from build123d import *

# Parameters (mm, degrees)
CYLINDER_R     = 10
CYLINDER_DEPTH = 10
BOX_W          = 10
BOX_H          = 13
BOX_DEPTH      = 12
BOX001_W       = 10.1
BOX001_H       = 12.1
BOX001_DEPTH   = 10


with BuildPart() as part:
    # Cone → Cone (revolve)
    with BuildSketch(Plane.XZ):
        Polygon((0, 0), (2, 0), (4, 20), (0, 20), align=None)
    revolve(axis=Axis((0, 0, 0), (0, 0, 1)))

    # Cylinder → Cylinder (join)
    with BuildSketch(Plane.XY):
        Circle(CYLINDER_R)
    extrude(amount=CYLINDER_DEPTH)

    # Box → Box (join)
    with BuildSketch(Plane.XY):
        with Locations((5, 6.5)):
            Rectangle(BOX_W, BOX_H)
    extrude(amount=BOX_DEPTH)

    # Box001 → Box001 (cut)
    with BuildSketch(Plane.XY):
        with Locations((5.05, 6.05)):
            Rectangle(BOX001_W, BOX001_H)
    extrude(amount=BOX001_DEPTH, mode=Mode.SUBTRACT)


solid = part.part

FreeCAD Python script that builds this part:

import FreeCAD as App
import Part
import Sketcher

V = App.Vector
Q = App.Units.Quantity


def add_polygon(sketch, points):
    """Adds a closed chain of lines whose ends are joined by coincident constraints."""
    first, n = sketch.GeometryCount, len(points)
    for a, b in zip(points, points[1:] + points[:1]):
        sketch.addGeometry(Part.LineSegment(App.Vector(*a, 0), App.Vector(*b, 0)), False)
    for i in range(n):
        sketch.addConstraint(Sketcher.Constraint("Coincident", first + i, 2, first + (i + 1) % n, 1))

doc = App.newDocument("Part")
body = doc.addObject("PartDesign::Body", "Body")

# Sketch on XZ plane
sketch1 = doc.addObject("Sketcher::SketchObject", "Sketch")
body.addObject(sketch1)
sketch1.AttachmentSupport = (doc.XZ_Plane, [""])
sketch1.MapMode = "FlatFace"
add_polygon(sketch1, [(0, 0), (2, 0), (4, 20), (0, 20)])  # lines 0-3
sketch1.addConstraint([
    Sketcher.Constraint("Horizontal", 0),
    Sketcher.Constraint("Horizontal", 2),
    Sketcher.Constraint("Vertical", 3),
    Sketcher.Constraint("Coincident", 3, 2, -1, 1),
    Sketcher.Constraint("DistanceX", 0, 1, 0, 2, Q("2 mm")),
    Sketcher.Constraint("DistanceX", 2, 2, 2, 1, Q("4 mm")),
    Sketcher.Constraint("DistanceY", 3, 2, 3, 1, Q("20 mm")),
])
revolution = doc.addObject("PartDesign::Revolution", "Revolution")
body.addObject(revolution)
revolution.Profile = sketch1
revolution.ReferenceAxis = (sketch1, ["V_Axis"])
revolution.Angle = 360

# Sketch on XY plane
sketch2 = doc.addObject("Sketcher::SketchObject", "Sketch001")
body.addObject(sketch2)
sketch2.AttachmentSupport = (doc.XY_Plane, [""])
sketch2.MapMode = "FlatFace"
sketch2.addGeometry(Part.Circle(V(0, 0, 0), V(0, 0, 1), 10), False)
sketch2.addConstraint([
    Sketcher.Constraint("Coincident", 0, 3, -1, 1),
    Sketcher.Constraint("Diameter", 0, Q("20 mm")),
])
pad1 = doc.addObject("PartDesign::Pad", "Pad")
body.addObject(pad1)
pad1.Profile = sketch2
pad1.Length = 10

# Sketch on XY plane
sketch3 = doc.addObject("Sketcher::SketchObject", "Sketch002")
body.addObject(sketch3)
sketch3.AttachmentSupport = (doc.XY_Plane, [""])
sketch3.MapMode = "FlatFace"
add_polygon(sketch3, [(0, 13), (0, 0), (10, 0), (10, 13)])  # lines 0-3
sketch3.addConstraint([
    Sketcher.Constraint("Vertical", 0),
    Sketcher.Constraint("Horizontal", 1),
    Sketcher.Constraint("Vertical", 2),
    Sketcher.Constraint("Horizontal", 3),
    Sketcher.Constraint("Coincident", 0, 2, -1, 1),
    Sketcher.Constraint("DistanceX", 1, 1, 1, 2, Q("10 mm")),
    Sketcher.Constraint("DistanceY", 0, 2, 0, 1, Q("13 mm")),
])
pad2 = doc.addObject("PartDesign::Pad", "Pad001")
body.addObject(pad2)
pad2.Profile = sketch3
pad2.Length = 12

# Sketch on XY plane
sketch4 = doc.addObject("Sketcher::SketchObject", "Sketch003")
body.addObject(sketch4)
sketch4.AttachmentSupport = (doc.XY_Plane, [""])
sketch4.MapMode = "FlatFace"
add_polygon(sketch4, [(0, 12), (0, 0), (10, 0), (10, 12)])  # lines 0-3
sketch4.addConstraint([
    Sketcher.Constraint("Vertical", 0),
    Sketcher.Constraint("Horizontal", 1),
    Sketcher.Constraint("Vertical", 2),
    Sketcher.Constraint("Horizontal", 3),
    Sketcher.Constraint("Coincident", 0, 2, -1, 1),
    Sketcher.Constraint("DistanceX", 1, 1, 1, 2, Q("10.1 mm")),
    Sketcher.Constraint("DistanceY", 0, 2, 0, 1, Q("12.1 mm")),
])
pocket1 = doc.addObject("PartDesign::Pocket", "Pocket")
body.addObject(pocket1)
pocket1.Profile = sketch4
pocket1.Length = 10
pocket1.Reversed = True

doc.recompute()
